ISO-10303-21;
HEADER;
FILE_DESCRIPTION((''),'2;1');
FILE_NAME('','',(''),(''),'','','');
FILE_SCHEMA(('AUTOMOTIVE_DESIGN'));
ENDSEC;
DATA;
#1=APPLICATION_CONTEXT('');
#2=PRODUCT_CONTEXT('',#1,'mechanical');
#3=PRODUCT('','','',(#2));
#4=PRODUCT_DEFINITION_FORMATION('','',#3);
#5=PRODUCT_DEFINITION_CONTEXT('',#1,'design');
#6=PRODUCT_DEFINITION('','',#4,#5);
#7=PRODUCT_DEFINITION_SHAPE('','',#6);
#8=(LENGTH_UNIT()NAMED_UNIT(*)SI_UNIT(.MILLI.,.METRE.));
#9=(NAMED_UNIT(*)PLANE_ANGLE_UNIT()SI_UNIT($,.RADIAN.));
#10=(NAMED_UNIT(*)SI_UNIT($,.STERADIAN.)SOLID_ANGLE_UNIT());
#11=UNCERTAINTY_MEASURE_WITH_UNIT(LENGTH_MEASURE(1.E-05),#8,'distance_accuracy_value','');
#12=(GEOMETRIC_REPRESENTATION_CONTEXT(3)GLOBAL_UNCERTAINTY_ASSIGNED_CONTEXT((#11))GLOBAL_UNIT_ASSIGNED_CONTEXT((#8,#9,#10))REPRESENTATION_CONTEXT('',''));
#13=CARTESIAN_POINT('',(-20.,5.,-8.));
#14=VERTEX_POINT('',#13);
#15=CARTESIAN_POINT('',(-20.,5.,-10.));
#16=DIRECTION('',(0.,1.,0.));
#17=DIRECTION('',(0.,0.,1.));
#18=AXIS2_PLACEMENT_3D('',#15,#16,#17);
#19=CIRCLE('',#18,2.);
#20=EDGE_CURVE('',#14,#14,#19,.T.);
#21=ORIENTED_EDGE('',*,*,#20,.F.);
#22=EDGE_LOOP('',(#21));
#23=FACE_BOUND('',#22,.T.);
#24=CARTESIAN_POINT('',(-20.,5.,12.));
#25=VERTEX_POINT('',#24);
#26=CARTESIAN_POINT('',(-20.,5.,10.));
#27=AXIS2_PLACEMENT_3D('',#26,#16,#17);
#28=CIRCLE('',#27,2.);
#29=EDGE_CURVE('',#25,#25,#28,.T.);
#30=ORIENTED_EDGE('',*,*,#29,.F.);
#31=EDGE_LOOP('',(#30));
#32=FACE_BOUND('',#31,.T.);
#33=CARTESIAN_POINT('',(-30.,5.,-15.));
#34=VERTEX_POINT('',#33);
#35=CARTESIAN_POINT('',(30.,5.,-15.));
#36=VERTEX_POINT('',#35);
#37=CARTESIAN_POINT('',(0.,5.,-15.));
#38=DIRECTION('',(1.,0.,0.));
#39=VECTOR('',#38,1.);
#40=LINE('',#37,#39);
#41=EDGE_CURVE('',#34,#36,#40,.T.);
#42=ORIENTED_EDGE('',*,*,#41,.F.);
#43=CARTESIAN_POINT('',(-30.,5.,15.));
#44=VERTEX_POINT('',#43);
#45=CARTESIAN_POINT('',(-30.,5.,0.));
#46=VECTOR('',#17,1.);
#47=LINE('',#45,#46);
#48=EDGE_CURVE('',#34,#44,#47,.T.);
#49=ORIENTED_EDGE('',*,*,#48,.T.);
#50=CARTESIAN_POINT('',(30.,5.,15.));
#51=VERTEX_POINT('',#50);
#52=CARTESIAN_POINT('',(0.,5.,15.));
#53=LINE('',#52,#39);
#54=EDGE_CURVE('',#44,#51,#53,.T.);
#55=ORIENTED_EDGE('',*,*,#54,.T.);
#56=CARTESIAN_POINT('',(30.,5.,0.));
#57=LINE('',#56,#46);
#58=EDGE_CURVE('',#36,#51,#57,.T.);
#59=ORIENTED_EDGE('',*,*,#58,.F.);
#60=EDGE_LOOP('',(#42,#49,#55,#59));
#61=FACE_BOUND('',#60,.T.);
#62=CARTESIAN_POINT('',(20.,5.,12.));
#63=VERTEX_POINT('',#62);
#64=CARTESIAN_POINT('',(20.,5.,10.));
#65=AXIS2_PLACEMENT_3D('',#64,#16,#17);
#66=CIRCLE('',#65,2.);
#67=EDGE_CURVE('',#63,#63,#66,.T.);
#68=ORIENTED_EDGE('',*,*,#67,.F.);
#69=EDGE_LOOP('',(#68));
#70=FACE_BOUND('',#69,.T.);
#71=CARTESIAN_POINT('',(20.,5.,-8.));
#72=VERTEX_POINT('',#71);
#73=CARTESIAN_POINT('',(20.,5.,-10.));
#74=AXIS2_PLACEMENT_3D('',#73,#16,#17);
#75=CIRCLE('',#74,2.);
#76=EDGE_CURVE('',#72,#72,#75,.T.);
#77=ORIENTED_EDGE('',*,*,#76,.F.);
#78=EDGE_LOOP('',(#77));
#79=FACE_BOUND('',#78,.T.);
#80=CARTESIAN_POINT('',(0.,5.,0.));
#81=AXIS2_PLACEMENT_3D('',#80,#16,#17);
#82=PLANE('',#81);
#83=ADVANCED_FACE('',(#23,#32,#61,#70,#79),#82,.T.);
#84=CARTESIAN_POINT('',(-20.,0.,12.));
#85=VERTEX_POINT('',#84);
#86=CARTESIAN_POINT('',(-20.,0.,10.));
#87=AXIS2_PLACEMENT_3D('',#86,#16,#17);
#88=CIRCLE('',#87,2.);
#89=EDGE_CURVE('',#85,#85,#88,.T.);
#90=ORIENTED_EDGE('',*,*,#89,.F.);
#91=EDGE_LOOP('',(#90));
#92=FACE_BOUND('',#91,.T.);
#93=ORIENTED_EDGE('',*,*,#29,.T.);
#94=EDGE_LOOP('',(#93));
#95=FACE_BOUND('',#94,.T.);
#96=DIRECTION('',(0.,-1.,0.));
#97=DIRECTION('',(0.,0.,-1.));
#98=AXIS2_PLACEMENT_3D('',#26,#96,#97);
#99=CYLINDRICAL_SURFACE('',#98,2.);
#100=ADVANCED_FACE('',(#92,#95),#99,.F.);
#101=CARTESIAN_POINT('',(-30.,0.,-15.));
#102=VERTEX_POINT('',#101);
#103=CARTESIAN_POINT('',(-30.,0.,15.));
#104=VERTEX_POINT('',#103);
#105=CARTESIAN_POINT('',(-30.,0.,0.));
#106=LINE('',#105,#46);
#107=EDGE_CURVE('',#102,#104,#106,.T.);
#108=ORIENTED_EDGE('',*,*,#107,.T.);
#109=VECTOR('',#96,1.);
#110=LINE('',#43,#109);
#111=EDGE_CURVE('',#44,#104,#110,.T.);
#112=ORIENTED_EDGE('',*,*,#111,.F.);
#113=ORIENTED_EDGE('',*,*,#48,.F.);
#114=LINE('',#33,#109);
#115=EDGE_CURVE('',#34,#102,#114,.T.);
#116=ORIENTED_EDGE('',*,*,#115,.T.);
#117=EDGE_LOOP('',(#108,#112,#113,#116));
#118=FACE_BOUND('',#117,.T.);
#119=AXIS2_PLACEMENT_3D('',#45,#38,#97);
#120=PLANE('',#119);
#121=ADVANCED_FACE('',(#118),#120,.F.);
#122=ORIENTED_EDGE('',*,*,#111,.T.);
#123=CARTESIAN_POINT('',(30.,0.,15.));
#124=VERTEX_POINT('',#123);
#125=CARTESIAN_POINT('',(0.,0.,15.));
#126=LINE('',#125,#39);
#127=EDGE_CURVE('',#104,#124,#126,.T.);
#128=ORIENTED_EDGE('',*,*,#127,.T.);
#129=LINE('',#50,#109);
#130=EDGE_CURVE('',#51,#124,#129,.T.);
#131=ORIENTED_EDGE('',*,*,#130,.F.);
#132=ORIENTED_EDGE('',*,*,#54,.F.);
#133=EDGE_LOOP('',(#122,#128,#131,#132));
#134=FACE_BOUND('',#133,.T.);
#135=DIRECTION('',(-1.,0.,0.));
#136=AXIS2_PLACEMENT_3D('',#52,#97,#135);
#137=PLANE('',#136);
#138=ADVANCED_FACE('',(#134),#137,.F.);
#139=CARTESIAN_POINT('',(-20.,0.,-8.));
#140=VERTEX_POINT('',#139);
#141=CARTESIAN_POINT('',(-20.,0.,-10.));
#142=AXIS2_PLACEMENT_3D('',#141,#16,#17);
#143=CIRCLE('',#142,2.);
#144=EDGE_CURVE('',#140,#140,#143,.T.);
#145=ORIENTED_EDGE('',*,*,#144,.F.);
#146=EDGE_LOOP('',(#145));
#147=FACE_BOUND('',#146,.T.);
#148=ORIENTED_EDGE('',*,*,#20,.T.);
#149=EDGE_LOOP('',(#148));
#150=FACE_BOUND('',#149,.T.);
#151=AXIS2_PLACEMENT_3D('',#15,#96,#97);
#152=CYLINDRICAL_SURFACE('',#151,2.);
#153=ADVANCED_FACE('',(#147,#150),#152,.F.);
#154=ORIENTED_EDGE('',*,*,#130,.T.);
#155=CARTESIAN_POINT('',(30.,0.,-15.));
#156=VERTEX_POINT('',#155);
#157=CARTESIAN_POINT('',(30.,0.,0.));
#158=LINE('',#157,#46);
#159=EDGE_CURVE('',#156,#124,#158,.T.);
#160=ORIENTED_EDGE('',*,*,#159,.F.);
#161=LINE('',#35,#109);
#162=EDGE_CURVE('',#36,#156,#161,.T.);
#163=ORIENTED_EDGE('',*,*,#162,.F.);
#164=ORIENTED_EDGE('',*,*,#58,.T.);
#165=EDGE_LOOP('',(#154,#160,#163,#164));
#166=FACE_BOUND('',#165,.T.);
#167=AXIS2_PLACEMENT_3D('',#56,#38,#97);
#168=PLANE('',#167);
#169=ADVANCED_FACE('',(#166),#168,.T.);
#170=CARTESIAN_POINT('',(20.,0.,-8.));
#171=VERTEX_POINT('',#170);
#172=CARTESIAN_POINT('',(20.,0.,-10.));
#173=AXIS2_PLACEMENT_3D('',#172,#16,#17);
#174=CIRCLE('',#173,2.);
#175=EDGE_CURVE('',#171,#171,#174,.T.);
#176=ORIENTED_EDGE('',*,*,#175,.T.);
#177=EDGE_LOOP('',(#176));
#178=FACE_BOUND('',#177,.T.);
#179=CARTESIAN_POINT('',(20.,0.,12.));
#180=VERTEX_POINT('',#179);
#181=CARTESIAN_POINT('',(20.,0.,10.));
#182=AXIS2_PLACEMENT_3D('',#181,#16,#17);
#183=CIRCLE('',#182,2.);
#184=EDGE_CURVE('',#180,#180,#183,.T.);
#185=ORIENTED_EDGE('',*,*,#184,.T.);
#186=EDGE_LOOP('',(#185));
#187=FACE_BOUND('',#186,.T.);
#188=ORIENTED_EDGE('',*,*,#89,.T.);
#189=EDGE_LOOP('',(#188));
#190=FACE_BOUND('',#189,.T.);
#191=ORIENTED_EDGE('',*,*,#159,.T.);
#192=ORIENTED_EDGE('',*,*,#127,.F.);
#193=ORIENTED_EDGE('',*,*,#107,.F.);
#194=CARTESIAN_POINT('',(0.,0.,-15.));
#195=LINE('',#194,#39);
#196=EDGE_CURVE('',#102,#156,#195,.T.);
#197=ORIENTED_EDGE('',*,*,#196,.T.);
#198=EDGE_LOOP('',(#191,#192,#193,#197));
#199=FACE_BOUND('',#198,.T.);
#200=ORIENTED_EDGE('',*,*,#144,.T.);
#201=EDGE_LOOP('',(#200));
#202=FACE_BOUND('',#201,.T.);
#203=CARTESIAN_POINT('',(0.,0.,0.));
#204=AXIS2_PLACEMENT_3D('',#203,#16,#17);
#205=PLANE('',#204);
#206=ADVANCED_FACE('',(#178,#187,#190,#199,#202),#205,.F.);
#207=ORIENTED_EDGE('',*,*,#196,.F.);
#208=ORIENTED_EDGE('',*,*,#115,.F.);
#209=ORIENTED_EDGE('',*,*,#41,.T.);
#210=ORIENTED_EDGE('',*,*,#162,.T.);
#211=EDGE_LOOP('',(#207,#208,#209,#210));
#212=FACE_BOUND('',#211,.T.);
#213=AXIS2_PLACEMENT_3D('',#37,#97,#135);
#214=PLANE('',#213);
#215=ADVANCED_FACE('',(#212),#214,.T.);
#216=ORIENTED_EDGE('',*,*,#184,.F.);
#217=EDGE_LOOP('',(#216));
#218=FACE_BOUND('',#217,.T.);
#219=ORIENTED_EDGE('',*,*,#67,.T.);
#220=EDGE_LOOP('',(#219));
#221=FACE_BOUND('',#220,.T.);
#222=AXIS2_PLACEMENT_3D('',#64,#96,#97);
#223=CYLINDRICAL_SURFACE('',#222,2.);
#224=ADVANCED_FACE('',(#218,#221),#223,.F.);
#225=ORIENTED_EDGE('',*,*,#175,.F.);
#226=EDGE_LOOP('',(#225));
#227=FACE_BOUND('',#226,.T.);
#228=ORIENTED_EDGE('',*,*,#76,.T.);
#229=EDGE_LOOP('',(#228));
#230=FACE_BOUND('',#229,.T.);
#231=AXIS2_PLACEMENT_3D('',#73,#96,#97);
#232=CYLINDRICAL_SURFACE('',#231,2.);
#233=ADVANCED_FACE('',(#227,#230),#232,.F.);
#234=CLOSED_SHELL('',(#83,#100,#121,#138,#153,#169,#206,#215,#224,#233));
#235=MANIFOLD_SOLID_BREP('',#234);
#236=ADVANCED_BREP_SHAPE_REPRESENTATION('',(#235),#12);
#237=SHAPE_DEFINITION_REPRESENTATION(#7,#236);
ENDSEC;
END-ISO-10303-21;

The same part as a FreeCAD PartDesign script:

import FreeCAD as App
import Part
import Sketcher


def add_polygon(sketch, points):
    """Adds a closed chain of lines whose ends are joined by coincident constraints."""
    first, n = sketch.GeometryCount, len(points)
    for a, b in zip(points, points[1:] + points[:1]):
        sketch.addGeometry(Part.LineSegment(App.Vector(*a, 0), App.Vector(*b, 0)), False)
    for i in range(n):
        sketch.addConstraint(Sketcher.Constraint("Coincident", first + i, 2, first + (i + 1) % n, 1))

doc = App.newDocument("Part")
body = doc.addObject("PartDesign::Body", "Body")

# Sketch on XZ plane
sketch1 = body.newObject("Sketcher::SketchObject", "Sketch")
sketch1.AttachmentSupport = (doc.getObject("XZ_Plane"), [""])
sketch1.MapMode = "FlatFace"
add_polygon(sketch1, [(-30, -15), (-30, 15), (30, 15), (30, -15)])  # lines 0-3
sketch1.addGeometry(Part.Circle(App.Vector(-20, 10, 0), App.Vector(0, 0, 1), 2), False)  # 4
sketch1.addGeometry(Part.Circle(App.Vector(20, 10, 0), App.Vector(0, 0, 1), 2), False)  # 5
sketch1.addGeometry(Part.Circle(App.Vector(-20, -10, 0), App.Vector(0, 0, 1), 2), False)  # 6
sketch1.addGeometry(Part.Circle(App.Vector(20, -10, 0), App.Vector(0, 0, 1), 2), False)  # 7
sketch1.addConstraint([
    Sketcher.Constraint("Vertical", 0),
    Sketcher.Constraint("Horizontal", 1),
    Sketcher.Constraint("Vertical", 2),
    Sketcher.Constraint("Horizontal", 3),
    Sketcher.Constraint("Equal", 4, 5),
    Sketcher.Constraint("Equal", 5, 6),
    Sketcher.Constraint("Equal", 6, 7),
    Sketcher.Constraint("Symmetric", 5, 3, 6, 3, -1, 1),
    Sketcher.Constraint("Symmetric", 4, 3, 7, 3, -1, 1),
    Sketcher.Constraint("Symmetric", 0, 2, 2, 2, -1, 1),
    Sketcher.Constraint("Symmetric", 4, 3, 5, 3, -2),
    Sketcher.Constraint("Diameter", 4, 4.0),
    Sketcher.Constraint("DistanceX", 1, 1, 1, 2, 60.0),
    Sketcher.Constraint("DistanceY", 0, 1, 0, 2, 30.0),
    Sketcher.Constraint("DistanceX", 4, 3, -1, 1, 20.0),
    Sketcher.Constraint("DistanceY", -1, 1, 4, 3, 10.0),
])
pad1 = body.newObject("PartDesign::Pad", "Pad")
pad1.Profile = sketch1
pad1.Length = 5
pad1.Reversed = True

doc.recompute()
